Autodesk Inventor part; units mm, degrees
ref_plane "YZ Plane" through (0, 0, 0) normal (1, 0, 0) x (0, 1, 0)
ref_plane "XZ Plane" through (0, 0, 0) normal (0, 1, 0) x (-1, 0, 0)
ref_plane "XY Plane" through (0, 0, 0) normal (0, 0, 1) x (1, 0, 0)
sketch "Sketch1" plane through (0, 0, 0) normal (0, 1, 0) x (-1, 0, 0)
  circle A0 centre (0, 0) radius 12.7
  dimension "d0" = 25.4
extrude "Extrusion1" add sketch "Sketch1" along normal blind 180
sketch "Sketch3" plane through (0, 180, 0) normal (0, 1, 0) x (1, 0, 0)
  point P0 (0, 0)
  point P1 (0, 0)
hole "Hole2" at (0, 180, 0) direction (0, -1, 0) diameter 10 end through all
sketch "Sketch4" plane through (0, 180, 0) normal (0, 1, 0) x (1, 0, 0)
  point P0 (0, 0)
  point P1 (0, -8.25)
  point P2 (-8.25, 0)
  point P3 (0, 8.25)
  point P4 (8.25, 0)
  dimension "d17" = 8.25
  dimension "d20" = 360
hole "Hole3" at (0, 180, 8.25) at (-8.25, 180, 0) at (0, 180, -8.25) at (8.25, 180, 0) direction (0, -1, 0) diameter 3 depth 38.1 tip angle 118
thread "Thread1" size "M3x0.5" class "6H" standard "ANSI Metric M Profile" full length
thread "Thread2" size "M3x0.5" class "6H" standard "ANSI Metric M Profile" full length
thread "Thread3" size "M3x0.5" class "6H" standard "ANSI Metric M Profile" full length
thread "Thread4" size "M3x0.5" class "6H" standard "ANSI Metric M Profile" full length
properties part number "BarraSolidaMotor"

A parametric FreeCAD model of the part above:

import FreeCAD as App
import Part
import Sketcher

V = App.Vector
Q = App.Units.Quantity

doc = App.newDocument("Part")
body = doc.addObject("PartDesign::Body", "Body")

# Sketch on XZ plane
sketch1 = body.newObject("Sketcher::SketchObject", "Sketch")
sketch1.AttachmentSupport = (doc.getObject("XZ_Plane"), [""])
sketch1.MapMode = "FlatFace"
sketch1.addGeometry(Part.Circle(V(0, 0, 0), V(0, 0, 1), 13), False)
sketch1.addConstraint([
    Sketcher.Constraint("Coincident", 0, 3, -1, 1),
    Sketcher.Constraint("Diameter", 0, Q("1 in")),
])
pad1 = body.newObject("PartDesign::Pad", "Pad")
pad1.Profile = sketch1
pad1.Length = 180
pad1.Reversed = True

# Sketch on XZ plane
sketch2 = body.newObject("Sketcher::SketchObject", "Sketch001")
sketch2.AttachmentSupport = (doc.getObject("XZ_Plane"), [""])
sketch2.MapMode = "FlatFace"
sketch2.AttachmentOffset = App.Placement(V(0, 0, -180), App.Rotation())
sketch2.addGeometry(Part.Circle(V(0, 0, 0), V(0, 0, 1), 5), False)
sketch2.addConstraint([
    Sketcher.Constraint("Coincident", 0, 3, -1, 1),
    Sketcher.Constraint("Diameter", 0, Q("0.3937 in")),
])
doc.recompute()
hole = body.newObject("PartDesign::Hole", "Hole")
hole.Profile = sketch2
hole.ThreadType = "None"
hole.Diameter = Q("0.3937008 in")
hole.DepthType = "ThroughAll"
hole.Reversed = True

# Sketch on XZ plane
sketch3 = body.newObject("Sketcher::SketchObject", "Sketch002")
sketch3.AttachmentSupport = (doc.getObject("XZ_Plane"), [""])
sketch3.MapMode = "FlatFace"
sketch3.AttachmentOffset = App.Placement(V(0, 0, -180), App.Rotation())
sketch3.addGeometry([
    Part.Circle(V(0, 8.2, 0), V(0, 0, 1), 1.5),
    Part.Circle(V(-8.2, 0, 0), V(0, 0, 1), 1.5),
    Part.Circle(V(0, -8.2, 0), V(0, 0, 1), 1.5),
    Part.Circle(V(8.2, 0, 0), V(0, 0, 1), 1.5),
], False)
sketch3.addConstraint([
    Sketcher.Constraint("Equal", 0, 1),
    Sketcher.Constraint("Equal", 1, 2),
    Sketcher.Constraint("Equal", 2, 3),
    Sketcher.Constraint("Symmetric", 0, 3, 2, 3, -1, 1),
    Sketcher.Constraint("Symmetric", 1, 3, 3, 3, -1, 1),
    Sketcher.Constraint("PointOnObject", 0, 3, -2),
    Sketcher.Constraint("PointOnObject", 1, 3, -1),
    Sketcher.Constraint("Diameter", 0, Q("0.1181 in")),
    Sketcher.Constraint("DistanceY", -1, 1, 0, 3, Q("0.3248 in")),
    Sketcher.Constraint("DistanceX", 1, 3, -1, 1, Q("0.3248 in")),
])
doc.recompute()
hole2 = body.newObject("PartDesign::Hole", "Hole001")
hole2.Profile = sketch3
hole2.ThreadType = "None"
hole2.Diameter = Q("0.1181102 in")
hole2.DepthType = "Dimension"
hole2.Depth = Q("1.5 in")
hole2.DrillPoint = "Angled"
hole2.DrillPointAngle = 118
hole2.Reversed = True

doc.recompute()
